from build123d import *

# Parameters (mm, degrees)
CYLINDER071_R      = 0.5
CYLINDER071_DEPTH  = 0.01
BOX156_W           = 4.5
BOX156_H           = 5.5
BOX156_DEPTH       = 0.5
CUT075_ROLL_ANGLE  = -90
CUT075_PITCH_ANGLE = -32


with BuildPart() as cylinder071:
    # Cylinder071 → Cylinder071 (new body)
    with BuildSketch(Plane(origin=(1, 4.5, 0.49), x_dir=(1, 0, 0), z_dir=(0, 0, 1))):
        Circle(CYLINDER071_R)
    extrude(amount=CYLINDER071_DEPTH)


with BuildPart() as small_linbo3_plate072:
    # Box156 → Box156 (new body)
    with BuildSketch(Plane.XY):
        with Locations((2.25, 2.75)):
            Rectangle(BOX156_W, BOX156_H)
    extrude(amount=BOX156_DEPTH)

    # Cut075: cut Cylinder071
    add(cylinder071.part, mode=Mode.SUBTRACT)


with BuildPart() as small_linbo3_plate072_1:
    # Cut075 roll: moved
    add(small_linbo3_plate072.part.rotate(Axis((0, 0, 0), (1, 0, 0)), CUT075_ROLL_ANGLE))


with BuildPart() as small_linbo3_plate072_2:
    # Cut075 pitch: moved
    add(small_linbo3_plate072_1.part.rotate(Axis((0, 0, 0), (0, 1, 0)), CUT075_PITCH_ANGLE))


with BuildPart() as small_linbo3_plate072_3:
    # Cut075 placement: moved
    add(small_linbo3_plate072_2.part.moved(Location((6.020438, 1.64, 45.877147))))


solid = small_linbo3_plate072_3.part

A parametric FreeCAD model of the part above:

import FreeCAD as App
import Part
import Sketcher

V = App.Vector
Q = App.Units.Quantity

doc = App.newDocument("Part")
body = doc.addObject("PartDesign::Body", "Body")

sketch1 = doc.addObject("Sketcher::SketchObject", "Sketch")
body.addObject(sketch1)
sketch1.AttachmentSupport = (doc.XY_Plane, [""])
sketch1.MapMode = "FlatFace"
sketch1.AttachmentOffset = App.Placement(V(0, 0, 0.49), App.Rotation())
sketch1.addGeometry(Part.Circle(V(1, 4.5, 0), V(0, 0, 1), 0.5), False)
sketch1.addConstraint([
    Sketcher.Constraint("Diameter", 0, Q("1 mm")),
    Sketcher.Constraint("DistanceX", -1, 1, 0, 3, Q("1 mm")),
    Sketcher.Constraint("DistanceY", -1, 1, 0, 3, Q("4.5 mm")),
])
pad1 = doc.addObject("PartDesign::Pad", "Pad")
body.addObject(pad1)
pad1.Profile = sketch1
pad1.Length = 0.01
body2 = doc.addObject("PartDesign::Body", "Body001")

sketch2 = doc.addObject("Sketcher::SketchObject", "Sketch001")
body2.addObject(sketch2)
sketch2.AttachmentSupport = (doc.getObject("XY_Plane001"), [""])
sketch2.MapMode = "FlatFace"
sketch2.addGeometry([
    Part.LineSegment(V(0, 5.5, 0), V(0, 0, 0)),
    Part.LineSegment(V(0, 0, 0), V(4.5, 0, 0)),
    Part.LineSegment(V(4.5, 0, 0), V(4.5, 5.5, 0)),
    Part.LineSegment(V(4.5, 5.5, 0), V(0, 5.5, 0)),
], False)
sketch2.addConstraint([
    Sketcher.Constraint("Coincident", 0, 2, 1, 1),
    Sketcher.Constraint("Coincident", 1, 2, 2, 1),
    Sketcher.Constraint("Coincident", 2, 2, 3, 1),
    Sketcher.Constraint("Coincident", 3, 2, 0, 1),
    Sketcher.Constraint("Vertical", 0),
    Sketcher.Constraint("Horizontal", 1),
    Sketcher.Constraint("Vertical", 2),
    Sketcher.Constraint("Horizontal", 3),
    Sketcher.Constraint("Coincident", 0, 2, -1, 1),
    Sketcher.Constraint("DistanceX", 1, 1, 1, 2, Q("4.5 mm")),
    Sketcher.Constraint("DistanceY", 0, 2, 0, 1, Q("5.5 mm")),
])
pad2 = doc.addObject("PartDesign::Pad", "Pad001")
body2.addObject(pad2)
pad2.Profile = sketch2
pad2.Length = 0.5
doc.recompute()

boolean = doc.addObject("PartDesign::Boolean", "Boolean")
body2.addObject(boolean)
boolean.Type = "Cut"
boolean.addObjects([body])
body3 = doc.addObject("PartDesign::Body", "Body002")
doc.recompute()

body2.Placement = App.Placement(V(0, 0, 0), App.Rotation(V(1, 0, 0), 270))
boolean2 = doc.addObject("PartDesign::Boolean", "Boolean001")
body3.addObject(boolean2)
boolean2.Type = "Fuse"
boolean2.addObjects([body2])
body4 = doc.addObject("PartDesign::Body", "Body003")
doc.recompute()

body3.Placement = App.Placement(V(0, 0, 0), App.Rotation(V(0, 1, 0), 328))
boolean3 = doc.addObject("PartDesign::Boolean", "Boolean002")
body4.addObject(boolean3)
boolean3.Type = "Fuse"
boolean3.addObjects([body3])
body5 = doc.addObject("PartDesign::Body", "Body004")
doc.recompute()

body4.Placement = App.Placement(V(6.020438, 1.64, 45.877147), App.Rotation(V(0, 0, 1), 0))
boolean4 = doc.addObject("PartDesign::Boolean", "Boolean003")
body5.addObject(boolean4)
boolean4.Type = "Fuse"
boolean4.addObjects([body4])

doc.recompute()
